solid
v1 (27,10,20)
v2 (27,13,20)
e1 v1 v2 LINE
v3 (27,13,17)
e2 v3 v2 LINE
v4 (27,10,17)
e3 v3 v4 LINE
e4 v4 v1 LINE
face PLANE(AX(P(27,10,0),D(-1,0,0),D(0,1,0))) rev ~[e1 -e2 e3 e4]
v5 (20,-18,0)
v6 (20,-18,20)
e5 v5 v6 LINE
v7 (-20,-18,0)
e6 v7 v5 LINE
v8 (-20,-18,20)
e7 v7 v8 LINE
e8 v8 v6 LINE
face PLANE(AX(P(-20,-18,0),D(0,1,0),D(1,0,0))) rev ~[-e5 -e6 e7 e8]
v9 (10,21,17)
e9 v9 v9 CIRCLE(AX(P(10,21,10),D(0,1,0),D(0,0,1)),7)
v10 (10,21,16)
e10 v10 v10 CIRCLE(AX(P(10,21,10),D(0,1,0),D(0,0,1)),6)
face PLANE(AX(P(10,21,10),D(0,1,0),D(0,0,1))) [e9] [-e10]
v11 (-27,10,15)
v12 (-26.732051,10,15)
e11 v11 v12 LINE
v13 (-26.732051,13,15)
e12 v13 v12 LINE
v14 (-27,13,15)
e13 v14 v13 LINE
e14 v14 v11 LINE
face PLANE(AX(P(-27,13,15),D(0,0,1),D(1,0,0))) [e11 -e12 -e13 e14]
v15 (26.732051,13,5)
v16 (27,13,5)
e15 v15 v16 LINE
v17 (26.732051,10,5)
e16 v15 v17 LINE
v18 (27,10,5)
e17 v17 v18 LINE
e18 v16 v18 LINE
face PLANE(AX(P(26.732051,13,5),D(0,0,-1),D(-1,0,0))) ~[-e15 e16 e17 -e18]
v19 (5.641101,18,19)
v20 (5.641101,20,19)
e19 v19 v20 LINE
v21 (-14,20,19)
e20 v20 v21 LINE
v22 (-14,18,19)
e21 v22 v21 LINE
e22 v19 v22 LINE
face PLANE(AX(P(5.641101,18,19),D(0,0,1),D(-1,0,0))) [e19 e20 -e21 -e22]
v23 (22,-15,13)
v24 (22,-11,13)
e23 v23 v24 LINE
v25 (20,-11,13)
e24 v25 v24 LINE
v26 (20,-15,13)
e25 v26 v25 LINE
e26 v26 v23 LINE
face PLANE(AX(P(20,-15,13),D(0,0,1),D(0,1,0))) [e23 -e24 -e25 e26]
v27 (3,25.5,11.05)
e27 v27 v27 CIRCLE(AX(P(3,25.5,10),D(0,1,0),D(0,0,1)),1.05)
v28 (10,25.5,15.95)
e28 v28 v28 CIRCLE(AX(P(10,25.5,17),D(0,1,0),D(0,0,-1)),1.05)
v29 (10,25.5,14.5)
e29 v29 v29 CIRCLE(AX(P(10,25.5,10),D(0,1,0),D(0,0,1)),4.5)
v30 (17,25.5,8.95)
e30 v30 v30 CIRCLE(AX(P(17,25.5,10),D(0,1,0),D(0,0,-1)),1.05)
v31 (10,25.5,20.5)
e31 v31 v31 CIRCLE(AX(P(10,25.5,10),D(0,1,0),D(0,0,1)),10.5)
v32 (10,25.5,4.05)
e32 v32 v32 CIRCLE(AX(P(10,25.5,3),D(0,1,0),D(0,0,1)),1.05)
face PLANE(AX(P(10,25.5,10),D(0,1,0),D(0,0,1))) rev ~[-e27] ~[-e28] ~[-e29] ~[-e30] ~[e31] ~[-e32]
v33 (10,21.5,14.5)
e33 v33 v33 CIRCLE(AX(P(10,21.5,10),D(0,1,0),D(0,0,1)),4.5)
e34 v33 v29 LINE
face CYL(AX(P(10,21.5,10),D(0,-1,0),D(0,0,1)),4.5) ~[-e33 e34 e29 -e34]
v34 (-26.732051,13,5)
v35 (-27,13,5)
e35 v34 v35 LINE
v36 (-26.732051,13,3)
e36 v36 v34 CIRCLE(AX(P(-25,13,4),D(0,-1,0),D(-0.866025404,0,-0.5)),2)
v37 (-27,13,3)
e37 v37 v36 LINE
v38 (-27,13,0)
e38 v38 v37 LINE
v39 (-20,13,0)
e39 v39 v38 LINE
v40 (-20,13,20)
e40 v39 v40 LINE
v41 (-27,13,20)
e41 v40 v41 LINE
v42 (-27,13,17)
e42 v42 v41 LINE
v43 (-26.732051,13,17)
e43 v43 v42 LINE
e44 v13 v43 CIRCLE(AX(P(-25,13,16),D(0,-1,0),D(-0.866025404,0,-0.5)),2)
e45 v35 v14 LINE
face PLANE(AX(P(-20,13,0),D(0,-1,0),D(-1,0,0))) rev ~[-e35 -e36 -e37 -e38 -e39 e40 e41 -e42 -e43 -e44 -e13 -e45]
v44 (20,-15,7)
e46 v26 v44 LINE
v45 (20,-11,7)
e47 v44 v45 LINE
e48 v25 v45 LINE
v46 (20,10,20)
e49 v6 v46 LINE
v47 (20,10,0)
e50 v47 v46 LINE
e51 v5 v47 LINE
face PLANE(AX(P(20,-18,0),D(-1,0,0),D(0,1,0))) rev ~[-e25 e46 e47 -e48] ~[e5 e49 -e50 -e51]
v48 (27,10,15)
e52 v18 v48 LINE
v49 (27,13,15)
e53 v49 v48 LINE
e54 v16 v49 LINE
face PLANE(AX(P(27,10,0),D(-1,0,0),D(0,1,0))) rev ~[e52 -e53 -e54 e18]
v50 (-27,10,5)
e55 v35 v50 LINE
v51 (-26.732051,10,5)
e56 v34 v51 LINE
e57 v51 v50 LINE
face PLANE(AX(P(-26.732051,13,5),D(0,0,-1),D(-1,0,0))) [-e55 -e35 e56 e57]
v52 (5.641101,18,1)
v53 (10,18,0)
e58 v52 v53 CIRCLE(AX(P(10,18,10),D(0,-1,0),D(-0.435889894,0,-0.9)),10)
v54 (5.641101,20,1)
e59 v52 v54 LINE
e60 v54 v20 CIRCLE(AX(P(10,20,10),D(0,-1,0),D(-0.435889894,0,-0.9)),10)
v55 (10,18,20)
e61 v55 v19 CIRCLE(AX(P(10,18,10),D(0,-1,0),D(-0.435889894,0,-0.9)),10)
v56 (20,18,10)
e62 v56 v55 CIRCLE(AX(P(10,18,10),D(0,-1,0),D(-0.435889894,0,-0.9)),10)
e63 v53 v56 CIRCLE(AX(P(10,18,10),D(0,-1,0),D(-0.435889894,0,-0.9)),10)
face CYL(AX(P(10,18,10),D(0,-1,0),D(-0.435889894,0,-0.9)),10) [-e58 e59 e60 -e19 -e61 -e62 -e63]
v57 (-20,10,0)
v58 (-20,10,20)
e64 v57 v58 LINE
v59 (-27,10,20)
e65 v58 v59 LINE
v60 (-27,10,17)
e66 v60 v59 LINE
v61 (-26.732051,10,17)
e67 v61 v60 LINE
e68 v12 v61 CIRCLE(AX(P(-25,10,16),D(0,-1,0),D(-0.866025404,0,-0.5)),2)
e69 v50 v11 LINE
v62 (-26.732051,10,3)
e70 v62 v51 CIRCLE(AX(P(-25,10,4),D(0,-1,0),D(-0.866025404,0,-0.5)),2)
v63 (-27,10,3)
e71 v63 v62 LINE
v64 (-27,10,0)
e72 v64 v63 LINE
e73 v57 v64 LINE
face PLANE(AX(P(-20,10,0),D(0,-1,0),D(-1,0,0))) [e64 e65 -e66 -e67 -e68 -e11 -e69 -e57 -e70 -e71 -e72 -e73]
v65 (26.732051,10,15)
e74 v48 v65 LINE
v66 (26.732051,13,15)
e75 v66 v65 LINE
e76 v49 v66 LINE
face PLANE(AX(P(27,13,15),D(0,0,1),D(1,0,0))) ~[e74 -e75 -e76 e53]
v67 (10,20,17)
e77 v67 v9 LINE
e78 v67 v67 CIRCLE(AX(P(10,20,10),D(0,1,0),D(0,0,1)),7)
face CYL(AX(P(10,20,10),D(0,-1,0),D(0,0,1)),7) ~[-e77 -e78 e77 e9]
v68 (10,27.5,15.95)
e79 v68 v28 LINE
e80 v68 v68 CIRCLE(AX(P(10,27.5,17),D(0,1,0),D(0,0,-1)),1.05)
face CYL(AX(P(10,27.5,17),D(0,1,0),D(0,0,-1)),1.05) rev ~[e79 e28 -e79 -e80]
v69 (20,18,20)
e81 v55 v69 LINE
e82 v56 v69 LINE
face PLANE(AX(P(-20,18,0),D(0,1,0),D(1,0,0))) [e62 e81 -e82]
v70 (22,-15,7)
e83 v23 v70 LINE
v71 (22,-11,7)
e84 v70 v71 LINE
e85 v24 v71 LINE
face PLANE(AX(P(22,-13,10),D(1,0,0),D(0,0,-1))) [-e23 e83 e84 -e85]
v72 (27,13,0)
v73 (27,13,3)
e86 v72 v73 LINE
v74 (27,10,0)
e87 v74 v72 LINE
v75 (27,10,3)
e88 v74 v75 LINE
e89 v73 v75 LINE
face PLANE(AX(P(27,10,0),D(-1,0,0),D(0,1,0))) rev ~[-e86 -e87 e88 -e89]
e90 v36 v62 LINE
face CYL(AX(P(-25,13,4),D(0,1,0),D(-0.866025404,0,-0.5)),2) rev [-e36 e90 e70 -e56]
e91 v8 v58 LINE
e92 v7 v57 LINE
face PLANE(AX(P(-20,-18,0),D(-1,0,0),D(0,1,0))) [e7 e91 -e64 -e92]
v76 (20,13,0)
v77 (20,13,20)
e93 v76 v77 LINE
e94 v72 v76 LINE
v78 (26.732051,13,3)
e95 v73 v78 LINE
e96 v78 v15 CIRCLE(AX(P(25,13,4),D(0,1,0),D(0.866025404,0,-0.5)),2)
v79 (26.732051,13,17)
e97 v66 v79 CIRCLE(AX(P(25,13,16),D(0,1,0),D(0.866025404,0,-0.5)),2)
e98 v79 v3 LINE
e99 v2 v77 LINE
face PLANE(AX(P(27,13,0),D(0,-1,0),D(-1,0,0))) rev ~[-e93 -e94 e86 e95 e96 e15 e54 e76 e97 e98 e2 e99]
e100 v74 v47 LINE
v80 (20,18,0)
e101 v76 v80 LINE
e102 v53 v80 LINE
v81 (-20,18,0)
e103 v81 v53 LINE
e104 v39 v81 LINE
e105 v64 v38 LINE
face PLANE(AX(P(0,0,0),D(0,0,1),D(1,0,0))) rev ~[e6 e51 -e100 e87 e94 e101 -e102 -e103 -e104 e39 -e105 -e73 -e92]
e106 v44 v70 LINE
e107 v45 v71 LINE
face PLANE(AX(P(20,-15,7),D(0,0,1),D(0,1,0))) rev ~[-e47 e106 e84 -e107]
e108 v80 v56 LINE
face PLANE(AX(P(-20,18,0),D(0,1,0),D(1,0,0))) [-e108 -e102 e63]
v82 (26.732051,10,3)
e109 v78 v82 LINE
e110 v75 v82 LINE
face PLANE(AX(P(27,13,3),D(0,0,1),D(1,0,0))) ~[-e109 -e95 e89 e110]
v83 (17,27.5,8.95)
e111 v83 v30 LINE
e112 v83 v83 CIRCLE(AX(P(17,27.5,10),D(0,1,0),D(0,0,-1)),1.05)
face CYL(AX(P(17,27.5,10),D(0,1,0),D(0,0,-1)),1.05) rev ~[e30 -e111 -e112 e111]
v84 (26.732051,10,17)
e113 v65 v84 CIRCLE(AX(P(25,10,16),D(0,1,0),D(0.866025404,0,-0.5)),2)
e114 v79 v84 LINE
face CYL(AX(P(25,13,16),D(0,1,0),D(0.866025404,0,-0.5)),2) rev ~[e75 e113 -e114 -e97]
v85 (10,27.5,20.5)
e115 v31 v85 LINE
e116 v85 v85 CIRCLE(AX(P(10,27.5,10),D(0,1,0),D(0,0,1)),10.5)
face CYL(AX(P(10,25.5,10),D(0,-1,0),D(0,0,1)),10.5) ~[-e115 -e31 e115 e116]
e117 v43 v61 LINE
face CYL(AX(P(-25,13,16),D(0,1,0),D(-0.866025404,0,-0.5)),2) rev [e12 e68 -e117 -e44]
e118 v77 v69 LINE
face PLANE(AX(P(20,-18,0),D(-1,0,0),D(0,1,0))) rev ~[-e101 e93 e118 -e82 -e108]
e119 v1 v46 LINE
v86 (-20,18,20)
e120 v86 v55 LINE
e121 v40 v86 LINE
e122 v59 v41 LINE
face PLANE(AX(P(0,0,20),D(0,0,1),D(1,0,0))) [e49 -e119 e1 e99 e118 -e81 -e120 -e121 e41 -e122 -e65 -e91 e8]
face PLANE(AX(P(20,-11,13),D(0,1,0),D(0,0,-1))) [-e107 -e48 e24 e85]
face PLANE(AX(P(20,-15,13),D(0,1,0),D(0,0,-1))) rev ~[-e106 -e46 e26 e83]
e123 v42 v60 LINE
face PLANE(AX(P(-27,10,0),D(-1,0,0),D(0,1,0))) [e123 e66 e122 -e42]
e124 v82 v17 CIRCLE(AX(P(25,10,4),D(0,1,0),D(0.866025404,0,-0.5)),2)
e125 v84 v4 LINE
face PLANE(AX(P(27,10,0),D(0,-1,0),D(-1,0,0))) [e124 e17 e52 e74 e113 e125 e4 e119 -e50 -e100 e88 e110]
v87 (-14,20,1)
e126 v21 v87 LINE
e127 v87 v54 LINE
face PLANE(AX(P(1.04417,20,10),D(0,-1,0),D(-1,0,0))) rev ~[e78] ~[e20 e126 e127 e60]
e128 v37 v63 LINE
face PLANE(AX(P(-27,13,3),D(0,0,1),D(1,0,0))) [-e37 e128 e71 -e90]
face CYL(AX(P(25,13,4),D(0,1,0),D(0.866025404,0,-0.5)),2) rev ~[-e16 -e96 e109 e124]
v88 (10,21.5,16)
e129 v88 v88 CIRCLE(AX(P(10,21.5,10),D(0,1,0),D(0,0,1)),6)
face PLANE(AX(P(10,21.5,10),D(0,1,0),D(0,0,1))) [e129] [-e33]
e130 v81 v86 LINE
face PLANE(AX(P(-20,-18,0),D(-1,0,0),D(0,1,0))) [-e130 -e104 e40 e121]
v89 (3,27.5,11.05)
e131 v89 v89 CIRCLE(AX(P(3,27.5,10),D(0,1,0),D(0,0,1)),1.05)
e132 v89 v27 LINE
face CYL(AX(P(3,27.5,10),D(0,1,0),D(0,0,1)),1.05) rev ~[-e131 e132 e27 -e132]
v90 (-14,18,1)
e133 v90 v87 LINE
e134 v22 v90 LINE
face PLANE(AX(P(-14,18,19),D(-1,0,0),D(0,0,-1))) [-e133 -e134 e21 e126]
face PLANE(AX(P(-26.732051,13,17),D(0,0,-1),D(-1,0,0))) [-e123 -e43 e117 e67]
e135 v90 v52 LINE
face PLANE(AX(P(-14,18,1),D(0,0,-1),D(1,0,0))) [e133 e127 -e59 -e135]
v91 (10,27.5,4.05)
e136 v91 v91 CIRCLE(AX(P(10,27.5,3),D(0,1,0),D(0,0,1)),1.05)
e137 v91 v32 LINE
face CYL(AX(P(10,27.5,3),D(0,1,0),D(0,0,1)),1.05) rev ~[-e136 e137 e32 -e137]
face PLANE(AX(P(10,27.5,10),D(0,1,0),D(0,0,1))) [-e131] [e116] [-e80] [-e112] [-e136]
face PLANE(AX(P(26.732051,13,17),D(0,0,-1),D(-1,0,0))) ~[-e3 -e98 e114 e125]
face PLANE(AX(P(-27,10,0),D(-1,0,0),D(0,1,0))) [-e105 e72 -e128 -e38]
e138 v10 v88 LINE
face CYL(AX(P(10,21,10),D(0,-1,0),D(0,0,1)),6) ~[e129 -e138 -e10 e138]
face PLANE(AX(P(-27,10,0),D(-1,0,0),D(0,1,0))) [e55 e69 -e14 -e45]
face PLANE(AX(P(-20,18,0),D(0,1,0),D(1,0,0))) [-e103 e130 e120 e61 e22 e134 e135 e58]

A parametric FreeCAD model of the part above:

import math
import FreeCAD as App
import Part
import Sketcher
from FreeCAD import Vector

doc = App.newDocument("Part")
body = doc.addObject("PartDesign::Body", "Body")

sketch1 = body.newObject("Sketcher::SketchObject", "Sketch")
sketch1.AttachmentSupport = (doc.getObject("XY_Plane"), [""])
sketch1.MapMode = "FlatFace"
sketch1.addGeometry([
    Part.LineSegment(Vector(-20, 18, 0), Vector(-20, -18, 0)),
    Part.LineSegment(Vector(-20, -18, 0), Vector(20, -18, 0)),
    Part.LineSegment(Vector(20, -18, 0), Vector(20, 18, 0)),
    Part.LineSegment(Vector(20, 18, 0), Vector(-20, 18, 0)),
], False)
sketch1.addConstraint([
    Sketcher.Constraint("Coincident", 0, 2, 1, 1),
    Sketcher.Constraint("Coincident", 1, 2, 2, 1),
    Sketcher.Constraint("Coincident", 2, 2, 3, 1),
    Sketcher.Constraint("Coincident", 3, 2, 0, 1),
    Sketcher.Constraint("Vertical", 0),
    Sketcher.Constraint("Horizontal", 1),
    Sketcher.Constraint("Vertical", 2),
    Sketcher.Constraint("Horizontal", 3),
    Sketcher.Constraint("Symmetric", 0, 2, 2, 2, -1, 1),
    Sketcher.Constraint("DistanceX", 1, 1, 1, 2, 40.0),
    Sketcher.Constraint("DistanceY", 0, 2, 0, 1, 36.0),
])
pad1 = body.newObject("PartDesign::Pad", "Pad")
pad1.Profile = sketch1
pad1.Length = 20

sketch2 = body.newObject("Sketcher::SketchObject", "Sketch001")
sketch2.AttachmentSupport = (doc.getObject("XZ_Plane"), [""])
sketch2.MapMode = "FlatFace"
sketch2.AttachmentOffset = App.Placement(Vector(0, 0, -18), App.Rotation())
sketch2.addGeometry([
    Part.LineSegment(Vector(6, 1, 0), Vector(-14, 1, 0)),
    Part.LineSegment(Vector(-14, 1, 0), Vector(-14, 19, 0)),
    Part.LineSegment(Vector(-14, 19, 0), Vector(6, 19, 0)),
    Part.ArcOfCircle(Part.Circle(Vector(10, 10, 0), Vector(0, 0, 1), 10), math.radians(-116), math.radians(116)),
], False)
sketch2.addConstraint([
    Sketcher.Constraint("Coincident", 0, 2, 1, 1),
    Sketcher.Constraint("Coincident", 1, 2, 2, 1),
    Sketcher.Constraint("Coincident", 2, 2, 3, 2),
    Sketcher.Constraint("Coincident", 3, 1, 0, 1),
    Sketcher.Constraint("Horizontal", 0),
    Sketcher.Constraint("Vertical", 1),
    Sketcher.Constraint("Horizontal", 2),
    Sketcher.Constraint("Vertical", 2, 2, 3, 1),
    Sketcher.Constraint("Radius", 3, 10.0),
    Sketcher.Constraint("DistanceY", 1, 1, 1, 2, 18.0),
    Sketcher.Constraint("DistanceX", -1, 1, 3, 3, 10.0),
    Sketcher.Constraint("DistanceY", -1, 1, 3, 3, 10.0),
    Sketcher.Constraint("DistanceX", 0, 2, -1, 1, 14.0),
])
pad2 = body.newObject("PartDesign::Pad", "Pad001")
pad2.Profile = sketch2
pad2.Length = 2
pad2.Reversed = True

sketch3 = body.newObject("Sketcher::SketchObject", "Sketch002")
sketch3.AttachmentSupport = (doc.getObject("XZ_Plane"), [""])
sketch3.MapMode = "FlatFace"
sketch3.AttachmentOffset = App.Placement(Vector(0, 0, -20), App.Rotation())
sketch3.addGeometry(Part.Circle(Vector(10, 10, 0), Vector(0, 0, 1), 7), False)
sketch3.addConstraint([
    Sketcher.Constraint("Diameter", 0, 14.0),
    Sketcher.Constraint("DistanceX", -1, 1, 0, 3, 10.0),
    Sketcher.Constraint("DistanceY", -1, 1, 0, 3, 10.0),
])
pad3 = body.newObject("PartDesign::Pad", "Pad002")
pad3.Profile = sketch3
pad3.Length = 1
pad3.Reversed = True

sketch4 = body.newObject("Sketcher::SketchObject", "Sketch003")
sketch4.AttachmentSupport = (doc.getObject("XZ_Plane"), [""])
sketch4.MapMode = "FlatFace"
sketch4.AttachmentOffset = App.Placement(Vector(0, 0, -21), App.Rotation())
sketch4.addGeometry(Part.Circle(Vector(10, 10, 0), Vector(0, 0, 1), 6), False)
sketch4.addConstraint([
    Sketcher.Constraint("Diameter", 0, 12.0),
    Sketcher.Constraint("DistanceX", -1, 1, 0, 3, 10.0),
    Sketcher.Constraint("DistanceY", -1, 1, 0, 3, 10.0),
])
pad4 = body.newObject("PartDesign::Pad", "Pad003")
pad4.Profile = sketch4
pad4.Length = 0.5
pad4.Reversed = True

sketch5 = body.newObject("Sketcher::SketchObject", "Sketch004")
sketch5.AttachmentSupport = (doc.getObject("XZ_Plane"), [""])
sketch5.MapMode = "FlatFace"
sketch5.AttachmentOffset = App.Placement(Vector(0, 0, -21.5), App.Rotation())
sketch5.addGeometry(Part.Circle(Vector(10, 10, 0), Vector(0, 0, 1), 4.5), False)
sketch5.addConstraint([
    Sketcher.Constraint("Diameter", 0, 9.0),
    Sketcher.Constraint("DistanceX", -1, 1, 0, 3, 10.0),
    Sketcher.Constraint("DistanceY", -1, 1, 0, 3, 10.0),
])
pad5 = body.newObject("PartDesign::Pad", "Pad004")
pad5.Profile = sketch5
pad5.Length = 4
pad5.Reversed = True

sketch6 = body.newObject("Sketcher::SketchObject", "Sketch005")
sketch6.AttachmentSupport = (doc.getObject("XZ_Plane"), [""])
sketch6.MapMode = "FlatFace"
sketch6.AttachmentOffset = App.Placement(Vector(0, 0, -25.5), App.Rotation())
sketch6.addGeometry(Part.Circle(Vector(10, 10, 0), Vector(0, 0, 1), 10), False)
sketch6.addConstraint([
    Sketcher.Constraint("Diameter", 0, 21.0),
    Sketcher.Constraint("DistanceX", -1, 1, 0, 3, 10.0),
    Sketcher.Constraint("DistanceY", -1, 1, 0, 3, 10.0),
])
pad6 = body.newObject("PartDesign::Pad", "Pad005")
pad6.Profile = sketch6
pad6.Length = 2
pad6.Reversed = True

sketch7 = body.newObject("Sketcher::SketchObject", "Sketch006")
sketch7.AttachmentSupport = (doc.getObject("XY_Plane"), [""])
sketch7.MapMode = "FlatFace"
sketch7.addGeometry([
    Part.LineSegment(Vector(-20, 13, 0), Vector(-20, 10, 0)),
    Part.LineSegment(Vector(-20, 10, 0), Vector(-27, 10, 0)),
    Part.LineSegment(Vector(-27, 10, 0), Vector(-27, 13, 0)),
    Part.LineSegment(Vector(-27, 13, 0), Vector(-20, 13, 0)),
    Part.LineSegment(Vector(27, 13, 0), Vector(27, 10, 0)),
    Part.LineSegment(Vector(27, 10, 0), Vector(20, 10, 0)),
    Part.LineSegment(Vector(20, 10, 0), Vector(20, 13, 0)),
    Part.LineSegment(Vector(20, 13, 0), Vector(27, 13, 0)),
], False)
sketch7.addConstraint([
    Sketcher.Constraint("Coincident", 0, 2, 1, 1),
    Sketcher.Constraint("Coincident", 1, 2, 2, 1),
    Sketcher.Constraint("Coincident", 2, 2, 3, 1),
    Sketcher.Constraint("Coincident", 3, 2, 0, 1),
    Sketcher.Constraint("Coincident", 4, 2, 5, 1),
    Sketcher.Constraint("Coincident", 5, 2, 6, 1),
    Sketcher.Constraint("Coincident", 6, 2, 7, 1),
    Sketcher.Constraint("Coincident", 7, 2, 4, 1),
    Sketcher.Constraint("Vertical", 0),
    Sketcher.Constraint("Horizontal", 1),
    Sketcher.Constraint("Vertical", 2),
    Sketcher.Constraint("Horizontal", 3),
    Sketcher.Constraint("Vertical", 4),
    Sketcher.Constraint("Horizontal", 5),
    Sketcher.Constraint("Vertical", 6),
    Sketcher.Constraint("Horizontal", 7),
    Sketcher.Constraint("Symmetric", 1, 2, 4, 2, -2),
    Sketcher.Constraint("Symmetric", 3, 2, 6, 2, -2),
    Sketcher.Constraint("DistanceX", 1, 2, 1, 1, 7.0),
    Sketcher.Constraint("DistanceY", 0, 2, 0, 1, 3.0),
    Sketcher.Constraint("DistanceX", 0, 2, -1, 1, 20.0),
    Sketcher.Constraint("DistanceY", -1, 1, 0, 2, 10.0),
])
pad7 = body.newObject("PartDesign::Pad", "Pad006")
pad7.Profile = sketch7
pad7.Length = 20

sketch8 = body.newObject("Sketcher::SketchObject", "Sketch007")
sketch8.AttachmentSupport = (doc.getObject("XZ_Plane"), [""])
sketch8.MapMode = "FlatFace"
sketch8.AttachmentOffset = App.Placement(Vector(0, 0, -13), App.Rotation())
sketch8.addGeometry([
    Part.LineSegment(Vector(-27, 15, 0), Vector(-27, 17, 0)),
    Part.LineSegment(Vector(-27, 17, 0), Vector(-26.73, 17, 0)),
    Part.ArcOfCircle(Part.Circle(Vector(-25, 16, 0), Vector(0, 0, 1), 2), math.radians(-150), math.radians(150)),
    Part.LineSegment(Vector(-26.73, 15, 0), Vector(-27, 15, 0)),
    Part.LineSegment(Vector(-26.73, 3, 0), Vector(-27, 3, 0)),
    Part.LineSegment(Vector(-27, 3, 0), Vector(-27, 5, 0)),
    Part.LineSegment(Vector(-27, 5, 0), Vector(-26.73, 5, 0)),
    Part.ArcOfCircle(Part.Circle(Vector(-25, 4, 0), Vector(0, 0, 1), 2), math.radians(-150), math.radians(150)),
], False)
sketch8.addConstraint([
    Sketcher.Constraint("Coincident", 0, 2, 1, 1),
    Sketcher.Constraint("Coincident", 1, 2, 2, 2),
    Sketcher.Constraint("Coincident", 2, 1, 3, 1),
    Sketcher.Constraint("Coincident", 3, 2, 0, 1),
    Sketcher.Constraint("Coincident", 4, 2, 5, 1),
    Sketcher.Constraint("Coincident", 5, 2, 6, 1),
    Sketcher.Constraint("Coincident", 6, 2, 7, 2),
    Sketcher.Constraint("Coincident", 7, 1, 4, 1),
    Sketcher.Constraint("Vertical", 0),
    Sketcher.Constraint("Horizontal", 1),
    Sketcher.Constraint("Horizontal", 3),
    Sketcher.Constraint("Horizontal", 4),
    Sketcher.Constraint("Vertical", 5),
    Sketcher.Constraint("Horizontal", 6),
    Sketcher.Constraint("Equal", 2, 7),
    Sketcher.Constraint("Vertical", 2, 3, 7, 3),
    Sketcher.Constraint("Vertical", 1, 2, 2, 1),
    Sketcher.Constraint("Vertical", 3, 2, 4, 2),
    Sketcher.Constraint("Vertical", 2, 1, 6, 2),
    Sketcher.Constraint("Vertical", 6, 2, 7, 1),
    Sketcher.Constraint("Radius", 2, 2.0),
    Sketcher.Constraint("DistanceY", 0, 1, 0, 2, 2.0),
    Sketcher.Constraint("DistanceX", 2, 3, -1, 1, 25.0),
    Sketcher.Constraint("DistanceY", -1, 1, 2, 3, 16.0),
    Sketcher.Constraint("DistanceY", -1, 1, 7, 3, 4.0),
    Sketcher.Constraint("DistanceX", 0, 2, -1, 1, 27.0),
])
pocket1 = body.newObject("PartDesign::Pocket", "Pocket")
pocket1.Profile = sketch8
pocket1.Length = 3
pocket1.Reversed = True
doc.recompute()

mirrored = body.newObject("PartDesign::Mirrored", "Mirrored")
mirrored.Originals = [pocket1]
mirrored.MirrorPlane = (doc.getObject("YZ_Plane"), [""])
body.Tip = mirrored

sketch9 = body.newObject("Sketcher::SketchObject", "Sketch008")
sketch9.AttachmentSupport = (doc.getObject("YZ_Plane"), [""])
sketch9.MapMode = "FlatFace"
sketch9.AttachmentOffset = App.Placement(Vector(0, 0, 20), App.Rotation())
sketch9.addGeometry([
    Part.LineSegment(Vector(-11, 13, 0), Vector(-15, 13, 0)),
    Part.LineSegment(Vector(-15, 13, 0), Vector(-15, 7, 0)),
    Part.LineSegment(Vector(-15, 7, 0), Vector(-11, 7, 0)),
    Part.LineSegment(Vector(-11, 7, 0), Vector(-11, 13, 0)),
], False)
sketch9.addConstraint([
    Sketcher.Constraint("Coincident", 0, 2, 1, 1),
    Sketcher.Constraint("Coincident", 1, 2, 2, 1),
    Sketcher.Constraint("Coincident", 2, 2, 3, 1),
    Sketcher.Constraint("Coincident", 3, 2, 0, 1),
    Sketcher.Constraint("Horizontal", 0),
    Sketcher.Constraint("Vertical", 1),
    Sketcher.Constraint("Horizontal", 2),
    Sketcher.Constraint("Vertical", 3),
    Sketcher.Constraint("DistanceX", 0, 2, 0, 1, 4.0),
    Sketcher.Constraint("DistanceY", 1, 2, 1, 1, 6.0),
    Sketcher.Constraint("DistanceX", 0, 2, -1, 1, 15.0),
    Sketcher.Constraint("DistanceY", -1, 1, 0, 2, 13.0),
])
pad8 = body.newObject("PartDesign::Pad", "Pad007")
pad8.Profile = sketch9
pad8.Length = 2

sketch10 = body.newObject("Sketcher::SketchObject", "Sketch009")
sketch10.AttachmentSupport = (doc.getObject("XZ_Plane"), [""])
sketch10.MapMode = "FlatFace"
sketch10.AttachmentOffset = App.Placement(Vector(0, 0, -27.5), App.Rotation())
sketch10.addGeometry([
    Part.Circle(Vector(10, 3, 0), Vector(0, 0, 1), 1.1),
    Part.Circle(Vector(3, 10, 0), Vector(0, 0, 1), 1.1),
    Part.Circle(Vector(10, 17, 0), Vector(0, 0, 1), 1.1),
    Part.Circle(Vector(17, 10, 0), Vector(0, 0, 1), 1.1),
], False)
sketch10.addConstraint([
    Sketcher.Constraint("Equal", 0, 1),
    Sketcher.Constraint("Equal", 1, 2),
    Sketcher.Constraint("Equal", 2, 3),
    Sketcher.Constraint("Horizontal", 1, 3, 3, 3),
    Sketcher.Constraint("Vertical", 0, 3, 2, 3),
    Sketcher.Constraint("Diameter", 0, 2.1),
    Sketcher.Constraint("DistanceX", -1, 1, 0, 3, 10.0),
    Sketcher.Constraint("DistanceY", -1, 1, 0, 3, 3.0),
    Sketcher.Constraint("DistanceX", -1, 1, 1, 3, 3.0),
    Sketcher.Constraint("DistanceY", -1, 1, 1, 3, 10.0),
    Sketcher.Constraint("DistanceY", -1, 1, 2, 3, 17.0),
    Sketcher.Constraint("DistanceX", -1, 1, 3, 3, 17.0),
])
pocket2 = body.newObject("PartDesign::Pocket", "Pocket001")
pocket2.Profile = sketch10
pocket2.Length = 2
pocket2.Reversed = True

doc.recompute()
